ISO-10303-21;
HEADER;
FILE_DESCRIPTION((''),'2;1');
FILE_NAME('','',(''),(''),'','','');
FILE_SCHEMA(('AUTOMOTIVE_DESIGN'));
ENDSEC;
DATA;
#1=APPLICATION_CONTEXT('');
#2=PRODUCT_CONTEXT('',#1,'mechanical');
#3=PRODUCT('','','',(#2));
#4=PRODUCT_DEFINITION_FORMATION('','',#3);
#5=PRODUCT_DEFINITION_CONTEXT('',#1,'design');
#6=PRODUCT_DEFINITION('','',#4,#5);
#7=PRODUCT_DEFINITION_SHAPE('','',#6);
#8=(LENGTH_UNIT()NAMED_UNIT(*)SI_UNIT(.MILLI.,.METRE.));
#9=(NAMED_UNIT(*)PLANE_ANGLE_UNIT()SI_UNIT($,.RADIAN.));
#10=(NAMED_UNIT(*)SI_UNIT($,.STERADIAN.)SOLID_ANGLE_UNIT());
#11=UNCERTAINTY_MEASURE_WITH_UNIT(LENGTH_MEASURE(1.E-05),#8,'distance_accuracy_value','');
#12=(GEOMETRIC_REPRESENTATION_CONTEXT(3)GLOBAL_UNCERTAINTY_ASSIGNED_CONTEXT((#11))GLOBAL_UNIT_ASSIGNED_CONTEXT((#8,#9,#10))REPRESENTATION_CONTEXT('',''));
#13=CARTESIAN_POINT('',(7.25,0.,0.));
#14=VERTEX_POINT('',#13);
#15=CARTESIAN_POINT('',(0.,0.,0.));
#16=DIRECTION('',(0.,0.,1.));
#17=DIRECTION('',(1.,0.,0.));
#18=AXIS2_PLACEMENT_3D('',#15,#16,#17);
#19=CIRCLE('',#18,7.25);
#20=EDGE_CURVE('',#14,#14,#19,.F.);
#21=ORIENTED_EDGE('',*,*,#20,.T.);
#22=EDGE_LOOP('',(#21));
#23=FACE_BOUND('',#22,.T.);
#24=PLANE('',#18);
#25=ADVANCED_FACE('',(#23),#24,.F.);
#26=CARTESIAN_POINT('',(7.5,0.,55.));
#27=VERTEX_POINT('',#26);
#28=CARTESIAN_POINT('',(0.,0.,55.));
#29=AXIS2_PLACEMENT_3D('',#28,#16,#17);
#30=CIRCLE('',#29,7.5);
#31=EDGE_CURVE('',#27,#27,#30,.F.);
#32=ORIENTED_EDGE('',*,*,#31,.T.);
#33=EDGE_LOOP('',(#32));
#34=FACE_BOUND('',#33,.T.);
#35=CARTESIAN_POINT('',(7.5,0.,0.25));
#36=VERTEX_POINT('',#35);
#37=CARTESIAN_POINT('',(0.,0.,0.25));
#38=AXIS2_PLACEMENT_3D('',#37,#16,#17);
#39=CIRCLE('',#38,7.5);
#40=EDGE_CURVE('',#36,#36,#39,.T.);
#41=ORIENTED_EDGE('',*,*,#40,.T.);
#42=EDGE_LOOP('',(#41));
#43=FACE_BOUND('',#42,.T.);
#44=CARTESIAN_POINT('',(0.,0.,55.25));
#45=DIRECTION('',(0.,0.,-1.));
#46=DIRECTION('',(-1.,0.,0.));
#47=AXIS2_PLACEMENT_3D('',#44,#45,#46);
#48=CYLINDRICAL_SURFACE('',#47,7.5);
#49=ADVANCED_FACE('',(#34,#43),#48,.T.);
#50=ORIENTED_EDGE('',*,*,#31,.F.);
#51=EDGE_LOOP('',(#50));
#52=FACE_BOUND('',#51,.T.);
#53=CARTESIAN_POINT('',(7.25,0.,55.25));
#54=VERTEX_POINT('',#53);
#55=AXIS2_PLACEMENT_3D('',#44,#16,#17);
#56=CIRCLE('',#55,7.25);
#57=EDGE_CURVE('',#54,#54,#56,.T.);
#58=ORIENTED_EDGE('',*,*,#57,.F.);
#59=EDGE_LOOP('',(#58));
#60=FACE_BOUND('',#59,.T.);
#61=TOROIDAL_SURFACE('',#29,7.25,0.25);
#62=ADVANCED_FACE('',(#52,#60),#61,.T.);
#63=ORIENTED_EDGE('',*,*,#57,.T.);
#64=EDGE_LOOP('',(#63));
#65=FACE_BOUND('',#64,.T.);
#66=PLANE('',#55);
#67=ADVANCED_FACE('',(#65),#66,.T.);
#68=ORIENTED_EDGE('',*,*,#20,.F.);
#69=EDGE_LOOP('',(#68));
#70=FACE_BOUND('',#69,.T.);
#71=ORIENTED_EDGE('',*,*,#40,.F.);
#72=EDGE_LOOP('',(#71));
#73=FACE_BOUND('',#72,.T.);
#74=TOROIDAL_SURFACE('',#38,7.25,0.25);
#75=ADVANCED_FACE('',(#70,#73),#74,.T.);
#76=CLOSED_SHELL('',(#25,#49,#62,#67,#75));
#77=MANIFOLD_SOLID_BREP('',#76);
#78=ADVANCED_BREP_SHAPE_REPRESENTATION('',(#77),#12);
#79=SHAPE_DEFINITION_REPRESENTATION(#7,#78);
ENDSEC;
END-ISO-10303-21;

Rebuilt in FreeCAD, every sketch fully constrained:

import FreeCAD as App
import Part
import Sketcher

V = App.Vector
Q = App.Units.Quantity


def edges_at(feature, points):
    """Names of the edges that pass closest to the given points."""
    edges = feature.Shape.Edges
    near = lambda p: min(range(len(edges)), key=lambda i: edges[i].distToShape(Part.Vertex(*p))[0])
    return sorted({f"Edge{near(p) + 1}" for p in points})

doc = App.newDocument("Part")
body = doc.addObject("PartDesign::Body", "Body")

# Sketch on XY plane
sketch1 = body.newObject("Sketcher::SketchObject", "Sketch")
sketch1.AttachmentSupport = (doc.getObject("XY_Plane"), [""])
sketch1.MapMode = "FlatFace"
sketch1.addGeometry(Part.Circle(V(0, 0, 0), V(0, 0, 1), 8), False)
sketch1.addConstraint(Sketcher.Constraint("Coincident", 0, 3, -1, 1))
sketch1.addConstraint(Sketcher.Constraint("Diameter", 0, Q("15 mm")))
pad1 = body.newObject("PartDesign::Pad", "Pad")
pad1.Profile = sketch1
pad1.Length = 55.25
doc.recompute()

fillet = body.newObject("PartDesign::Fillet", "Fillet")
fillet.Base = (pad1, edges_at(pad1, [(-7.5, 0, 0), (-7.5, 0, 55.25)]))
fillet.Radius = 0.25

doc.recompute()
